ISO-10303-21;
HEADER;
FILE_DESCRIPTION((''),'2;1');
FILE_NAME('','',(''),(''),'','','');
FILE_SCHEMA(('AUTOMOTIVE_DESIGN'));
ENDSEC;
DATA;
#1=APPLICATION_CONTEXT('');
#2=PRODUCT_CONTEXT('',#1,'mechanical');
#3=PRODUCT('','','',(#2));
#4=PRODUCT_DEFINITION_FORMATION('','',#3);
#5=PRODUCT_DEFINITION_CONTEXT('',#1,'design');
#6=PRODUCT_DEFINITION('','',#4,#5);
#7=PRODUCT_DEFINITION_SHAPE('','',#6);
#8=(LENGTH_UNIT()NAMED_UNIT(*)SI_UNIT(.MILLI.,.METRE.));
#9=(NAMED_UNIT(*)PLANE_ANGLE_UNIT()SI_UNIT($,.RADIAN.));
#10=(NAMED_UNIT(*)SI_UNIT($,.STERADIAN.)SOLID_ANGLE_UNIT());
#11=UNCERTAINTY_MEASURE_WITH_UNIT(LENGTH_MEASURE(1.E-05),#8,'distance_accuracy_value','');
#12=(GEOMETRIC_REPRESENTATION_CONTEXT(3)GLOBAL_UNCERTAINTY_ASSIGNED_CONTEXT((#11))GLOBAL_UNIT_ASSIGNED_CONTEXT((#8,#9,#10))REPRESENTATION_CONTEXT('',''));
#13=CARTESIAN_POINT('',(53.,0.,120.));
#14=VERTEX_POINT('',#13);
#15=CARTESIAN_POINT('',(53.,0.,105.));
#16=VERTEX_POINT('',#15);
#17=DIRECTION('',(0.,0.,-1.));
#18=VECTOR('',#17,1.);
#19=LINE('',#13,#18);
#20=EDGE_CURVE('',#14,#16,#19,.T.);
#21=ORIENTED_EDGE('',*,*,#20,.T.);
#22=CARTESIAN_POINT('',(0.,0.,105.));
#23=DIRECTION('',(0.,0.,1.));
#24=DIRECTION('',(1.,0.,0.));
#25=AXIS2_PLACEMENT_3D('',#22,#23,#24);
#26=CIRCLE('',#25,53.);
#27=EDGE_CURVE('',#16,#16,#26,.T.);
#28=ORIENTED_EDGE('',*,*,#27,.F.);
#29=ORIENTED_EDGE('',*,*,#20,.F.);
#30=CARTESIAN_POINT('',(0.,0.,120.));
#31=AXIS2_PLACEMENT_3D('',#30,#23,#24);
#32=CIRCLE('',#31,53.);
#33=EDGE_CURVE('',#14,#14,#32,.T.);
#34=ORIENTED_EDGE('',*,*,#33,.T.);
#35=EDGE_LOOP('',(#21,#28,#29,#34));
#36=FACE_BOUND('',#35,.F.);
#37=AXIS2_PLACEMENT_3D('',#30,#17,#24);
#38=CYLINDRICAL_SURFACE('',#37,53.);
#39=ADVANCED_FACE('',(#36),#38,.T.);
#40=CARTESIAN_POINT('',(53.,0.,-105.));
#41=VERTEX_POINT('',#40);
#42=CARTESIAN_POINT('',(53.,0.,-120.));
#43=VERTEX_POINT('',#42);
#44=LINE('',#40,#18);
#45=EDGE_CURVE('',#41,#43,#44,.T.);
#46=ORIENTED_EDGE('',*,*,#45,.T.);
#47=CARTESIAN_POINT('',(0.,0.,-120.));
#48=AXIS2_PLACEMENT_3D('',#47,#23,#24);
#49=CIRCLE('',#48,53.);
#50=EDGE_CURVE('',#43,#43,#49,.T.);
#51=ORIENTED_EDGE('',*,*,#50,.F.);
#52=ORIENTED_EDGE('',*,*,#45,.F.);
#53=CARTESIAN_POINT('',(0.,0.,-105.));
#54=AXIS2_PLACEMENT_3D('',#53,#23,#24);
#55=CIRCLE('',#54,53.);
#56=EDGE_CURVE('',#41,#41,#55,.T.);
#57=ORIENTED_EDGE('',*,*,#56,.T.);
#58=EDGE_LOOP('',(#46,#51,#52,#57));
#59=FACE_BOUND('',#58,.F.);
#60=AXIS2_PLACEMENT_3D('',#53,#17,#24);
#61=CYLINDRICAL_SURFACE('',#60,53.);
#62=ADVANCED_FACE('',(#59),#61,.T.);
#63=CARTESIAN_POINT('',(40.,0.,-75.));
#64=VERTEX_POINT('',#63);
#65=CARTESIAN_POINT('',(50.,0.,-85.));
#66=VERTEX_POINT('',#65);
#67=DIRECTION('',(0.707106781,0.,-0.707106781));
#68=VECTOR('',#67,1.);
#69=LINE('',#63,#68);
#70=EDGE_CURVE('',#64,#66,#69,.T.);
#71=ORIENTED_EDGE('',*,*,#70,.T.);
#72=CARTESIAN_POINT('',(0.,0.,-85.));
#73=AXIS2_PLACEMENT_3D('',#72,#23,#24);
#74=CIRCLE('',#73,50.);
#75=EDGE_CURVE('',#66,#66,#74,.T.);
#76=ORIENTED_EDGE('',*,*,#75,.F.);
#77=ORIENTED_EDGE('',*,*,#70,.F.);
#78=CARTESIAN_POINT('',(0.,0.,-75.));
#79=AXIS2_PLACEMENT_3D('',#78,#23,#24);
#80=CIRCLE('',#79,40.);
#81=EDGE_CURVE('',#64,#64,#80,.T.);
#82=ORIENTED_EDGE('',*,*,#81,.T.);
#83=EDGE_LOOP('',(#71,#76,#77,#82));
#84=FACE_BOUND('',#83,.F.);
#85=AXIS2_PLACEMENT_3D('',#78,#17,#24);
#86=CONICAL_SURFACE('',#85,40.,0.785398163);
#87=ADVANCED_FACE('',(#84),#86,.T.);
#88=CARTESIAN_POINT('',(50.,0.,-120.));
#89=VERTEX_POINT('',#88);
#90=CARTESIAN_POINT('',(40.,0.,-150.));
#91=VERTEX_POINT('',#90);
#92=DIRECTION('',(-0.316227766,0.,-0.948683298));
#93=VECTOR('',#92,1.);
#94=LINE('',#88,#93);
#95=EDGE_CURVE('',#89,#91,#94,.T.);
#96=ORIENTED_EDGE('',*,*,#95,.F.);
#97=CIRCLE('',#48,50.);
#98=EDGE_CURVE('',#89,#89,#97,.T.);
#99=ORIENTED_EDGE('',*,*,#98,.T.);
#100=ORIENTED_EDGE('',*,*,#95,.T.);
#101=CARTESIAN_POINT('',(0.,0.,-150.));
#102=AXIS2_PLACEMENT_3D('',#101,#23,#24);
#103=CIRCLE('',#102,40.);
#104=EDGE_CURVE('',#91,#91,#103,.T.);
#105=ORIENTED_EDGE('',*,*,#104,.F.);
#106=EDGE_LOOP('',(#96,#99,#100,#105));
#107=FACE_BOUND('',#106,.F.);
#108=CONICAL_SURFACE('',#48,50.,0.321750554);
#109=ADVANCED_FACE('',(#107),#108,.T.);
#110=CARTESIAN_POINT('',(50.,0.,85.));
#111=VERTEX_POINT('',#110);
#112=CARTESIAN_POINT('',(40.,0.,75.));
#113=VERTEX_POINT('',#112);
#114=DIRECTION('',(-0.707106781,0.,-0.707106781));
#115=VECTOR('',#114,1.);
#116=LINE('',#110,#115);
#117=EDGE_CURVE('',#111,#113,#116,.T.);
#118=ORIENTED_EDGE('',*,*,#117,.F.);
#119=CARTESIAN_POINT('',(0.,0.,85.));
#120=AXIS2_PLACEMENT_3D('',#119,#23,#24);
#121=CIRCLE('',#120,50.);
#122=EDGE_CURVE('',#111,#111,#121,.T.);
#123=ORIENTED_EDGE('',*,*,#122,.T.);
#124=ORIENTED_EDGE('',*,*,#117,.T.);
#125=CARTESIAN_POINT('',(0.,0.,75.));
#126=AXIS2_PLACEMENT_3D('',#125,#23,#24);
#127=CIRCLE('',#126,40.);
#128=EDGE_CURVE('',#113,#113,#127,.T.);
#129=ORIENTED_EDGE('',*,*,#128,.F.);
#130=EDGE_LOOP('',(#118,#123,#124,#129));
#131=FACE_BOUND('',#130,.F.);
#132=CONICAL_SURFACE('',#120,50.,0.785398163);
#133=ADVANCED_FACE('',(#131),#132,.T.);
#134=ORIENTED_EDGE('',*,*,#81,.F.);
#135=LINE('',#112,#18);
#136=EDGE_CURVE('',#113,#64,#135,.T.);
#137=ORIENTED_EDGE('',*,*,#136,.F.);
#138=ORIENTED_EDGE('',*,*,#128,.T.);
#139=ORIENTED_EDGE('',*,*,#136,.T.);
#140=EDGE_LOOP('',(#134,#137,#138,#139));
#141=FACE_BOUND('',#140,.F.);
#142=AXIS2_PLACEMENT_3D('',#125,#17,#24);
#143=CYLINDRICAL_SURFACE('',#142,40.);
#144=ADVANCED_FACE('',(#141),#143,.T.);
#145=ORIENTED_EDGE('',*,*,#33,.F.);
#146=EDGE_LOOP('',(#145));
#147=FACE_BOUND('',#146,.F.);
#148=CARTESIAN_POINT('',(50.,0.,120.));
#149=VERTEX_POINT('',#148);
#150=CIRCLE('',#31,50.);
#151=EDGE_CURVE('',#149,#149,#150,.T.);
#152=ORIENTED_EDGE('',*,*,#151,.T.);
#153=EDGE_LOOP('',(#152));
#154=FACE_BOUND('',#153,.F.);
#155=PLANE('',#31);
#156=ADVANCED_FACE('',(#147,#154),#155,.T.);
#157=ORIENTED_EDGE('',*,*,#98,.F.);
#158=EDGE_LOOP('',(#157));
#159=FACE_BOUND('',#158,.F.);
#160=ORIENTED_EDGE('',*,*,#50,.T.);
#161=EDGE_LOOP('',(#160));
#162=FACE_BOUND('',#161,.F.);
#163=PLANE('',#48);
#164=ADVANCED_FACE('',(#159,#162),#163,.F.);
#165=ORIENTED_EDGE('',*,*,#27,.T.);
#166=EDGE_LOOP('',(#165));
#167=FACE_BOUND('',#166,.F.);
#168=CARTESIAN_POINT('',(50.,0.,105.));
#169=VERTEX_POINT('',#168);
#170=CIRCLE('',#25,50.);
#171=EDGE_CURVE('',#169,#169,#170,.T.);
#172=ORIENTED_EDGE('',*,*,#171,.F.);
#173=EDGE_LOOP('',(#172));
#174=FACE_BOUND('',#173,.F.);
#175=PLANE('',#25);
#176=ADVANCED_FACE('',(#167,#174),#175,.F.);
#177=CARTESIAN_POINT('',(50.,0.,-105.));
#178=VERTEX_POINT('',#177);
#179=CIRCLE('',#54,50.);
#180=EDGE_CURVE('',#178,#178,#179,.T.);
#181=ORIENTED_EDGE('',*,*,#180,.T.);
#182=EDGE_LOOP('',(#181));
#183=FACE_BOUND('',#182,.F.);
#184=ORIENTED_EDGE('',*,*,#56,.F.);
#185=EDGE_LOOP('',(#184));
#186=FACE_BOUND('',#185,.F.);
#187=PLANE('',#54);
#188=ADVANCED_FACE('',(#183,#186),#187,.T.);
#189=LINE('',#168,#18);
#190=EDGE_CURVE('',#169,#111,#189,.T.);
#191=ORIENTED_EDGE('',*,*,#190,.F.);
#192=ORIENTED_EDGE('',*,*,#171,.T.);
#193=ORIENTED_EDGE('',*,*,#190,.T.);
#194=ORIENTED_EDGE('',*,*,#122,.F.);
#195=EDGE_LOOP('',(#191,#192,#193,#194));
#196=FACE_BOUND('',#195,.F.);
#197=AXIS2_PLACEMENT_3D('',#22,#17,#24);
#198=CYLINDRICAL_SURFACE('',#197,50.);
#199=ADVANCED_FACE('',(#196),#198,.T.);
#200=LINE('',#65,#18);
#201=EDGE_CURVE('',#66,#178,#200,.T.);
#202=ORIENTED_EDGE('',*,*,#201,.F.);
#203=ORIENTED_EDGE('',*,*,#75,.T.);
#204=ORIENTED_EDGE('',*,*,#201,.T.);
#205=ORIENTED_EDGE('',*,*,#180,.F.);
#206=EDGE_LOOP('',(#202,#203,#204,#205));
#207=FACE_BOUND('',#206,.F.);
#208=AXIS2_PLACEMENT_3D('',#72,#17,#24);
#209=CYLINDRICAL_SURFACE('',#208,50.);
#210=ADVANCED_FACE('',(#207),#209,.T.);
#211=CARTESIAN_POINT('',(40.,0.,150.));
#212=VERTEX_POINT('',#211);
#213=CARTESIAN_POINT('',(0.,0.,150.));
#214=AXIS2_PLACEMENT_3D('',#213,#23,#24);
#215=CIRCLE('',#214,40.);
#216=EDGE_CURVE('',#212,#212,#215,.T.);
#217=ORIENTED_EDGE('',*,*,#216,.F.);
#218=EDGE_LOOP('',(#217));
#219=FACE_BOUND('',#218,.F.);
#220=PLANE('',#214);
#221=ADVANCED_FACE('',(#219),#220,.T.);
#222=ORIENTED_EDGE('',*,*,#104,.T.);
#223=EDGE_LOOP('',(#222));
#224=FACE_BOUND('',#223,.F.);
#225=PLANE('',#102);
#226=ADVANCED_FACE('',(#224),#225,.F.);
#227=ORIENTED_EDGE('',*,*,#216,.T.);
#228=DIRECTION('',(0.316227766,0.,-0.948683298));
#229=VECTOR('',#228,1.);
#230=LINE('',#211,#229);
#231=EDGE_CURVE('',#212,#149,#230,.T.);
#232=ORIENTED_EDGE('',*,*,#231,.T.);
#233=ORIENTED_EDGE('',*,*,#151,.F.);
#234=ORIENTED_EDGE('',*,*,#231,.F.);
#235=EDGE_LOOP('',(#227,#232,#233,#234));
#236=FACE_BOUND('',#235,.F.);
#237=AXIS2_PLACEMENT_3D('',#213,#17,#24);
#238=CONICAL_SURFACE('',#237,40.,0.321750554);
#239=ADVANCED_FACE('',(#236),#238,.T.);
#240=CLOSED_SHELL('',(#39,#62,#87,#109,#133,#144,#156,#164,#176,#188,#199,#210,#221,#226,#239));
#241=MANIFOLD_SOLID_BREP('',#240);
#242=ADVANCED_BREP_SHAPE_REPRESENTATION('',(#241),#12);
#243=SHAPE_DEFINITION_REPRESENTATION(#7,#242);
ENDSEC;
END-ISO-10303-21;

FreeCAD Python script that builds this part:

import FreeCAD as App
import Part
import Sketcher


def add_polygon(sketch, points):
    """Adds a closed chain of lines whose ends are joined by coincident constraints."""
    first, n = sketch.GeometryCount, len(points)
    for a, b in zip(points, points[1:] + points[:1]):
        sketch.addGeometry(Part.LineSegment(App.Vector(*a, 0), App.Vector(*b, 0)), False)
    for i in range(n):
        sketch.addConstraint(Sketcher.Constraint("Coincident", first + i, 2, first + (i + 1) % n, 1))

doc = App.newDocument("Part")
params = doc.addObject("Spreadsheet::Sheet", "Params")
for row, (alias, value) in enumerate([
    ("sketch1_width", "40 mm"),
    ("sketch1_width2", "3 mm"),
    ("sketch1_height", "300 mm"),
    ("sketch1_height2", "15 mm"),
    ("sketch1_height3", "20 mm"),
    ("revolution_angle", "360 deg"),
], start=1):
    params.set(f"A{row}", alias)
    params.set(f"B{row}", "=" + value)
    params.setAlias(f"B{row}", alias)

body = doc.addObject("PartDesign::Body", "Body")

# Sketch on XZ plane
sketch1 = doc.addObject("Sketcher::SketchObject", "Sketch")
body.addObject(sketch1)
sketch1.AttachmentSupport = (doc.XZ_Plane, [""])
sketch1.MapMode = "FlatFace"
add_polygon(sketch1, [(40, 150), (0, 150), (0, -150), (40, -150), (50, -120), (53, -120), (53, -105), (50, -105), (50, -85), (40, -75), (40, 75), (50, 85), (50, 105), (53, 105), (53, 120), (50, 120)])  # lines 0-15
sketch1.addConstraint([
    Sketcher.Constraint("Horizontal", 0),
    Sketcher.Constraint("Vertical", 1),
    Sketcher.Constraint("Horizontal", 2),
    Sketcher.Constraint("Horizontal", 4),
    Sketcher.Constraint("Vertical", 5),
    Sketcher.Constraint("Horizontal", 6),
    Sketcher.Constraint("Vertical", 7),
    Sketcher.Constraint("Vertical", 9),
    Sketcher.Constraint("Vertical", 11),
    Sketcher.Constraint("Horizontal", 12),
    Sketcher.Constraint("Vertical", 13),
    Sketcher.Constraint("Horizontal", 14),
    Sketcher.Constraint("Symmetric", 0, 2, 1, 2, -1, 1),
    Sketcher.Constraint("Symmetric", 7, 2, 10, 2, -1),
    Sketcher.Constraint("Symmetric", 5, 2, 12, 2, -1),
    Sketcher.Constraint("Symmetric", 3, 2, 14, 2, -1),
    Sketcher.Constraint("Perpendicular", 8, 10),
    Sketcher.Constraint("Vertical", 3, 2, 6, 2),
    Sketcher.Constraint("Vertical", 2, 2, 8, 2),
    Sketcher.Constraint("Vertical", 9, 2, 15, 2),
    Sketcher.Constraint("Equal", 8, 10),
    Sketcher.Constraint("DistanceX", 0, 2, 0, 1, 40.0),
    Sketcher.Constraint("DistanceX", 4, 1, 4, 2, 3.0),
    Sketcher.Constraint("DistanceY", 1, 2, 1, 1, 300.0),
    Sketcher.Constraint("DistanceY", 5, 1, 5, 2, 15.0),
    Sketcher.Constraint("DistanceY", 7, 1, 7, 2, 20.0),
    Sketcher.Constraint("DistanceY", 9, 1, 9, 2, 150.0),
    Sketcher.Constraint("DistanceX", -1, 1, 3, 2, 50.0),
])
sketch1.setExpression("Constraints[37]", "Params.sketch1_width")
sketch1.setExpression("Constraints[38]", "Params.sketch1_width2")
sketch1.setExpression("Constraints[39]", "Params.sketch1_height")
sketch1.setExpression("Constraints[40]", "Params.sketch1_height2")
sketch1.setExpression("Constraints[41]", "Params.sketch1_height3")
revolution = doc.addObject("PartDesign::Revolution", "Revolution")
body.addObject(revolution)
revolution.Profile = sketch1
revolution.ReferenceAxis = (sketch1, ["V_Axis"])
revolution.setExpression("Angle", "Params.revolution_angle")

doc.recompute()
